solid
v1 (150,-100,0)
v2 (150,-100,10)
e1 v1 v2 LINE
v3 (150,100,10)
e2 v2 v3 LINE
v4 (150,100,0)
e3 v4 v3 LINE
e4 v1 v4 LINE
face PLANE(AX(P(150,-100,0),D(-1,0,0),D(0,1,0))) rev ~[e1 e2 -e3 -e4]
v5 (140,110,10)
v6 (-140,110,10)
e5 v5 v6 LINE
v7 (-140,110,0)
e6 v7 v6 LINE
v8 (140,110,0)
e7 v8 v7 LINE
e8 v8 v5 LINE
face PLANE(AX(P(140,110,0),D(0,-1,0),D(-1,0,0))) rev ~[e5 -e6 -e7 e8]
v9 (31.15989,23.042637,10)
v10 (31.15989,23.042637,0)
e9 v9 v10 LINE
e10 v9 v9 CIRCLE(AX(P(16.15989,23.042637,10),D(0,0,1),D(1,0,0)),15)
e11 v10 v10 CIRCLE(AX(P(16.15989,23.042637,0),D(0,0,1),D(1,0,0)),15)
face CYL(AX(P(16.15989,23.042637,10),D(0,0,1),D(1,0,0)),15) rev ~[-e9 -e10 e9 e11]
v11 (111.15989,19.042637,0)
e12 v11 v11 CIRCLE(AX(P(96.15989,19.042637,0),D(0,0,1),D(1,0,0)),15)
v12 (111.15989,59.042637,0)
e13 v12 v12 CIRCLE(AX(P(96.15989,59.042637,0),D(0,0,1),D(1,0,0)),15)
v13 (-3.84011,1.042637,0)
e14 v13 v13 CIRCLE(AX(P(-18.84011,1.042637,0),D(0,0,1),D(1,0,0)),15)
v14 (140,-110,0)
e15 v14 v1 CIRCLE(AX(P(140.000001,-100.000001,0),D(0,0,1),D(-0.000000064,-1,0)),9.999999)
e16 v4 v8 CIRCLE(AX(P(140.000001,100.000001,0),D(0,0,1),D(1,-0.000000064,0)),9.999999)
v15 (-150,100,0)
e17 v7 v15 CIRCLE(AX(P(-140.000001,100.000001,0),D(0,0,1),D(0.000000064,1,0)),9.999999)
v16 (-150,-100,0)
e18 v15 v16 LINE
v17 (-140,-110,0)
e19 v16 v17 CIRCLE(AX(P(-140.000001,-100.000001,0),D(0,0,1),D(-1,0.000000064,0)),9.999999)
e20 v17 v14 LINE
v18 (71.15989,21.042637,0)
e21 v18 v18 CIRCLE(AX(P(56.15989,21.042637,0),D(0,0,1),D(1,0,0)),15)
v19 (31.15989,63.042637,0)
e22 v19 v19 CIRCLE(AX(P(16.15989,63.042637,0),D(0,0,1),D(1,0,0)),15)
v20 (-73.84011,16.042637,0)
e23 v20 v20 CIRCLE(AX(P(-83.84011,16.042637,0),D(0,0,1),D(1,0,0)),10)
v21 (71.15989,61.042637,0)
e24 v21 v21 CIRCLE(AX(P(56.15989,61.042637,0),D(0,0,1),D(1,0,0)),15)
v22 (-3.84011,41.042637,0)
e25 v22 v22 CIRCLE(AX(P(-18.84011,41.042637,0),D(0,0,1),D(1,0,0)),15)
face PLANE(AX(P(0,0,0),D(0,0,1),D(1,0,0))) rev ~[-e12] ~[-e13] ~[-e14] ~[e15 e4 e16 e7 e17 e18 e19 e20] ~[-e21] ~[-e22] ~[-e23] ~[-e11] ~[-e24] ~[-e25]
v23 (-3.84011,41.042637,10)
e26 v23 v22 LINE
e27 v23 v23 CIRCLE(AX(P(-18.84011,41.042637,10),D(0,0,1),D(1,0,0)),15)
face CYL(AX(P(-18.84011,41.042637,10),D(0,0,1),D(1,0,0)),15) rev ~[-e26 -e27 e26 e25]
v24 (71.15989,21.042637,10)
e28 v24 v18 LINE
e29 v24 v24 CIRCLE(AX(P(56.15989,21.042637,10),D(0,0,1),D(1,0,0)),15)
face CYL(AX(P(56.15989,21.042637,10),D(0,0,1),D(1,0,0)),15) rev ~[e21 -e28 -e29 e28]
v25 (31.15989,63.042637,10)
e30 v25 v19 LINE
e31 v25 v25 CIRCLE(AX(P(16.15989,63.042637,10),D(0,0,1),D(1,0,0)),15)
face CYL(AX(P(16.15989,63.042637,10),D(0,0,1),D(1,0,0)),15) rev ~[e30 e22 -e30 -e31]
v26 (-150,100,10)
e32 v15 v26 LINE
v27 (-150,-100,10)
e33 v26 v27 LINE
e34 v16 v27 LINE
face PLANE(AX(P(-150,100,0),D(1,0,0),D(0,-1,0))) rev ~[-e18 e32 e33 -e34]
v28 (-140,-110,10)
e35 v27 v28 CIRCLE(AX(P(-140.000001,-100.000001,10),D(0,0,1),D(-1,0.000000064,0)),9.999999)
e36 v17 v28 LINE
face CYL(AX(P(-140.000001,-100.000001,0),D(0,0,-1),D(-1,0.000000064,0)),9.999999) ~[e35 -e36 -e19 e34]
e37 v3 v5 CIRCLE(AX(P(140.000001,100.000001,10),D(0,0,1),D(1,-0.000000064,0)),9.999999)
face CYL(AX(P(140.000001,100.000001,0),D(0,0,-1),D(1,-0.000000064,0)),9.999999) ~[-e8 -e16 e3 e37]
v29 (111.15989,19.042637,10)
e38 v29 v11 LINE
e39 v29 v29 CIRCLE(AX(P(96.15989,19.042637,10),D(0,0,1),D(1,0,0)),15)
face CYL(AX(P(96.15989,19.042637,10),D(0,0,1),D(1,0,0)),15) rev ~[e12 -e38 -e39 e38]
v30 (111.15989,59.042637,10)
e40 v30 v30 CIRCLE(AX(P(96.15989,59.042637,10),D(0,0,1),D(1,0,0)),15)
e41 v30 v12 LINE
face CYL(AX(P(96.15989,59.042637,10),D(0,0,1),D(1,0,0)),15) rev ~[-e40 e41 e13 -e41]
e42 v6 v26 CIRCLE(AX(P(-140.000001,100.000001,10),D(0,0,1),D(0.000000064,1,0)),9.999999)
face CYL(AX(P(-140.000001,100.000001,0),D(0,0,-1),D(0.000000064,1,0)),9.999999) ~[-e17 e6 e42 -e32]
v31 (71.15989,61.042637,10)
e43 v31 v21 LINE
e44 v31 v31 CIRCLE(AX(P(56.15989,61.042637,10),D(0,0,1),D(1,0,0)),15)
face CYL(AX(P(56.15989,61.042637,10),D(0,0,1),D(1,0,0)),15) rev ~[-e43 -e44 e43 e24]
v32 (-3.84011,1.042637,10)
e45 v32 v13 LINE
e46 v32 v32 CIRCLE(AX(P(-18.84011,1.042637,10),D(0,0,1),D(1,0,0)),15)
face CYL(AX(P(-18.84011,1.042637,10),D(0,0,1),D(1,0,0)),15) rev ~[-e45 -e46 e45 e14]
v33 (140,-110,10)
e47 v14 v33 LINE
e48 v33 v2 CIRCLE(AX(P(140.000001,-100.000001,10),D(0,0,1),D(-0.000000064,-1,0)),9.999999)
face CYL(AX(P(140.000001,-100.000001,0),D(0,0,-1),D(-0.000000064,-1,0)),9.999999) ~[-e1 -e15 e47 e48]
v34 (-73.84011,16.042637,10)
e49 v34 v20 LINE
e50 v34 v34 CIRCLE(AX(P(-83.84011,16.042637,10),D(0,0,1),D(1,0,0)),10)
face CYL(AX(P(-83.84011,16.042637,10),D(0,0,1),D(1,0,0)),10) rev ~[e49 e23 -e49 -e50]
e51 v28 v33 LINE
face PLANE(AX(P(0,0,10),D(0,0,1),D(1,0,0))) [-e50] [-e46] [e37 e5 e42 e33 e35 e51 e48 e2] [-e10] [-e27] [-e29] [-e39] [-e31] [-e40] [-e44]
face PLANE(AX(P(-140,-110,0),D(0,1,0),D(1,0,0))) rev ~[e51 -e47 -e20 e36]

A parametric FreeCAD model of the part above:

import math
import FreeCAD as App
import Part
import Sketcher

doc = App.newDocument("Part")
params = doc.addObject("Spreadsheet::Sheet", "Params")
for row, (alias, value) in enumerate([
    ("sketch1_radius", "9.999999 mm"),
    ("sketch1_width", "280 mm"),
    ("sketch1_height", "200 mm"),
    ("pad1_length", "10 mm"),
    ("sketch2_diameter", "20 mm"),
    ("sketch2_diameter2", "30 mm"),
    ("pocket1_length", "10 mm"),
], start=1):
    params.set(f"A{row}", alias)
    params.set(f"B{row}", "=" + value)
    params.setAlias(f"B{row}", alias)

body = doc.addObject("PartDesign::Body", "Body")

# Sketch on XY plane
sketch1 = body.newObject("Sketcher::SketchObject", "Sketch")
sketch1.AttachmentSupport = (doc.getObject("XY_Plane"), [""])
sketch1.MapMode = "FlatFace"
sketch1.addGeometry([
    Part.LineSegment(App.Vector(140, 110, 0), App.Vector(-140, 110, 0)),  # 0
    Part.ArcOfCircle(Part.Circle(App.Vector(-140.000001, 100.000001, 0), App.Vector(0, 0, 1), 9.999999), math.radians(89.999996), math.radians(180.000004)),  # 1
    Part.LineSegment(App.Vector(-150, 100, 0), App.Vector(-150, -100, 0)),  # 2
    Part.ArcOfCircle(Part.Circle(App.Vector(-140.000001, -100.000001, 0), App.Vector(0, 0, 1), 9.999999), math.radians(179.999996), math.radians(270.000004)),  # 3
    Part.LineSegment(App.Vector(-140, -110, 0), App.Vector(140, -110, 0)),  # 4
    Part.ArcOfCircle(Part.Circle(App.Vector(140.000001, -100.000001, 0), App.Vector(0, 0, 1), 9.999999), math.radians(-90.000004), math.radians(0.000004)),  # 5
    Part.LineSegment(App.Vector(150, -100, 0), App.Vector(150, 100, 0)),  # 6
    Part.ArcOfCircle(Part.Circle(App.Vector(140.000001, 100.000001, 0), App.Vector(0, 0, 1), 9.999999), math.radians(-0.000004), math.radians(90.000004)),  # 7
], False)
sketch1.addConstraint([
    Sketcher.Constraint("Tangent", 0, 2, 1, 1),
    Sketcher.Constraint("Tangent", 1, 2, 2, 1),
    Sketcher.Constraint("Tangent", 2, 2, 3, 1),
    Sketcher.Constraint("Tangent", 3, 2, 4, 1),
    Sketcher.Constraint("Tangent", 4, 2, 5, 1),
    Sketcher.Constraint("Tangent", 5, 2, 6, 1),
    Sketcher.Constraint("Tangent", 6, 2, 7, 1),
    Sketcher.Constraint("Tangent", 7, 2, 0, 1),
    Sketcher.Constraint("Horizontal", 0),
    Sketcher.Constraint("Vertical", 2),
    Sketcher.Constraint("Horizontal", 4),
    Sketcher.Constraint("Vertical", 6),
    Sketcher.Constraint("Equal", 1, 3),
    Sketcher.Constraint("Equal", 3, 5),
    Sketcher.Constraint("Equal", 5, 7),
    Sketcher.Constraint("Symmetric", 1, 3, 5, 3, -1, 1),
    Sketcher.Constraint("Radius", 1, 9.999999),
    Sketcher.Constraint("DistanceX", 0, 2, 0, 1, 280.0),
    Sketcher.Constraint("DistanceY", 2, 2, 2, 1, 200.0),
])
sketch1.setExpression("Constraints[16]", "Params.sketch1_radius")
sketch1.setExpression("Constraints[17]", "Params.sketch1_width")
sketch1.setExpression("Constraints[18]", "Params.sketch1_height")
pad1 = body.newObject("PartDesign::Pad", "Pad")
pad1.Profile = sketch1
pad1.setExpression("Length", "Params.pad1_length")

# Sketch on XY plane
sketch2 = body.newObject("Sketcher::SketchObject", "Sketch001")
sketch2.AttachmentSupport = (doc.getObject("XY_Plane"), [""])
sketch2.MapMode = "FlatFace"
sketch2.AttachmentOffset = App.Placement(App.Vector(0, 0, 10), App.Rotation())
sketch2.addGeometry([
    Part.Circle(App.Vector(-83.84011, 16.042637, 0), App.Vector(0, 0, 1), 10),  # 0
    Part.Circle(App.Vector(-18.84011, 41.042637, 0), App.Vector(0, 0, 1), 15),  # 1
    Part.Circle(App.Vector(16.15989, 63.042637, 0), App.Vector(0, 0, 1), 15),  # 2
    Part.Circle(App.Vector(56.15989, 61.042637, 0), App.Vector(0, 0, 1), 15),  # 3
    Part.Circle(App.Vector(96.15989, 59.042637, 0), App.Vector(0, 0, 1), 15),  # 4
    Part.Circle(App.Vector(96.15989, 19.042637, 0), App.Vector(0, 0, 1), 15),  # 5
    Part.Circle(App.Vector(56.15989, 21.042637, 0), App.Vector(0, 0, 1), 15),  # 6
    Part.Circle(App.Vector(16.15989, 23.042637, 0), App.Vector(0, 0, 1), 15),  # 7
    Part.Circle(App.Vector(-18.84011, 1.042637, 0), App.Vector(0, 0, 1), 15),  # 8
], False)
sketch2.addConstraint([
    Sketcher.Constraint("Equal", 1, 2),
    Sketcher.Constraint("Equal", 2, 3),
    Sketcher.Constraint("Equal", 3, 4),
    Sketcher.Constraint("Equal", 4, 5),
    Sketcher.Constraint("Equal", 5, 6),
    Sketcher.Constraint("Equal", 6, 7),
    Sketcher.Constraint("Equal", 7, 8),
    Sketcher.Constraint("Vertical", 4, 3, 5, 3),
    Sketcher.Constraint("Vertical", 3, 3, 6, 3),
    Sketcher.Constraint("Vertical", 2, 3, 7, 3),
    Sketcher.Constraint("Vertical", 1, 3, 8, 3),
    Sketcher.Constraint("Diameter", 0, 20.0),
    Sketcher.Constraint("Diameter", 1, 30.0),
    Sketcher.Constraint("DistanceX", 0, 3, 1, 3, 65.0),
    Sketcher.Constraint("DistanceY", 0, 3, 1, 3, 25.0),
    Sketcher.Constraint("DistanceX", 1, 3, 2, 3, 35.0),
    Sketcher.Constraint("DistanceY", 1, 3, 2, 3, 22.0),
    Sketcher.Constraint("DistanceX", 2, 3, 3, 3, 40.0),
    Sketcher.Constraint("DistanceY", 3, 3, 2, 3, 2.0),
    Sketcher.Constraint("DistanceX", 3, 3, 4, 3, 40.0),
    Sketcher.Constraint("DistanceY", 4, 3, 3, 3, 2.0),
    Sketcher.Constraint("DistanceY", 5, 3, 4, 3, 40.0),
    Sketcher.Constraint("DistanceY", 6, 3, 3, 3, 40.0),
    Sketcher.Constraint("DistanceY", 7, 3, 1, 3, 18.0),
    Sketcher.Constraint("DistanceY", 8, 3, 1, 3, 40.0),
    Sketcher.Constraint("DistanceX", 0, 3, -1, 1, 83.84011),
    Sketcher.Constraint("DistanceY", -1, 1, 0, 3, 16.042637),
])
sketch2.setExpression("Constraints[11]", "Params.sketch2_diameter")
sketch2.setExpression("Constraints[12]", "Params.sketch2_diameter2")
pocket1 = body.newObject("PartDesign::Pocket", "Pocket")
pocket1.Profile = sketch2
pocket1.setExpression("Length", "Params.pocket1_length")

doc.recompute()
